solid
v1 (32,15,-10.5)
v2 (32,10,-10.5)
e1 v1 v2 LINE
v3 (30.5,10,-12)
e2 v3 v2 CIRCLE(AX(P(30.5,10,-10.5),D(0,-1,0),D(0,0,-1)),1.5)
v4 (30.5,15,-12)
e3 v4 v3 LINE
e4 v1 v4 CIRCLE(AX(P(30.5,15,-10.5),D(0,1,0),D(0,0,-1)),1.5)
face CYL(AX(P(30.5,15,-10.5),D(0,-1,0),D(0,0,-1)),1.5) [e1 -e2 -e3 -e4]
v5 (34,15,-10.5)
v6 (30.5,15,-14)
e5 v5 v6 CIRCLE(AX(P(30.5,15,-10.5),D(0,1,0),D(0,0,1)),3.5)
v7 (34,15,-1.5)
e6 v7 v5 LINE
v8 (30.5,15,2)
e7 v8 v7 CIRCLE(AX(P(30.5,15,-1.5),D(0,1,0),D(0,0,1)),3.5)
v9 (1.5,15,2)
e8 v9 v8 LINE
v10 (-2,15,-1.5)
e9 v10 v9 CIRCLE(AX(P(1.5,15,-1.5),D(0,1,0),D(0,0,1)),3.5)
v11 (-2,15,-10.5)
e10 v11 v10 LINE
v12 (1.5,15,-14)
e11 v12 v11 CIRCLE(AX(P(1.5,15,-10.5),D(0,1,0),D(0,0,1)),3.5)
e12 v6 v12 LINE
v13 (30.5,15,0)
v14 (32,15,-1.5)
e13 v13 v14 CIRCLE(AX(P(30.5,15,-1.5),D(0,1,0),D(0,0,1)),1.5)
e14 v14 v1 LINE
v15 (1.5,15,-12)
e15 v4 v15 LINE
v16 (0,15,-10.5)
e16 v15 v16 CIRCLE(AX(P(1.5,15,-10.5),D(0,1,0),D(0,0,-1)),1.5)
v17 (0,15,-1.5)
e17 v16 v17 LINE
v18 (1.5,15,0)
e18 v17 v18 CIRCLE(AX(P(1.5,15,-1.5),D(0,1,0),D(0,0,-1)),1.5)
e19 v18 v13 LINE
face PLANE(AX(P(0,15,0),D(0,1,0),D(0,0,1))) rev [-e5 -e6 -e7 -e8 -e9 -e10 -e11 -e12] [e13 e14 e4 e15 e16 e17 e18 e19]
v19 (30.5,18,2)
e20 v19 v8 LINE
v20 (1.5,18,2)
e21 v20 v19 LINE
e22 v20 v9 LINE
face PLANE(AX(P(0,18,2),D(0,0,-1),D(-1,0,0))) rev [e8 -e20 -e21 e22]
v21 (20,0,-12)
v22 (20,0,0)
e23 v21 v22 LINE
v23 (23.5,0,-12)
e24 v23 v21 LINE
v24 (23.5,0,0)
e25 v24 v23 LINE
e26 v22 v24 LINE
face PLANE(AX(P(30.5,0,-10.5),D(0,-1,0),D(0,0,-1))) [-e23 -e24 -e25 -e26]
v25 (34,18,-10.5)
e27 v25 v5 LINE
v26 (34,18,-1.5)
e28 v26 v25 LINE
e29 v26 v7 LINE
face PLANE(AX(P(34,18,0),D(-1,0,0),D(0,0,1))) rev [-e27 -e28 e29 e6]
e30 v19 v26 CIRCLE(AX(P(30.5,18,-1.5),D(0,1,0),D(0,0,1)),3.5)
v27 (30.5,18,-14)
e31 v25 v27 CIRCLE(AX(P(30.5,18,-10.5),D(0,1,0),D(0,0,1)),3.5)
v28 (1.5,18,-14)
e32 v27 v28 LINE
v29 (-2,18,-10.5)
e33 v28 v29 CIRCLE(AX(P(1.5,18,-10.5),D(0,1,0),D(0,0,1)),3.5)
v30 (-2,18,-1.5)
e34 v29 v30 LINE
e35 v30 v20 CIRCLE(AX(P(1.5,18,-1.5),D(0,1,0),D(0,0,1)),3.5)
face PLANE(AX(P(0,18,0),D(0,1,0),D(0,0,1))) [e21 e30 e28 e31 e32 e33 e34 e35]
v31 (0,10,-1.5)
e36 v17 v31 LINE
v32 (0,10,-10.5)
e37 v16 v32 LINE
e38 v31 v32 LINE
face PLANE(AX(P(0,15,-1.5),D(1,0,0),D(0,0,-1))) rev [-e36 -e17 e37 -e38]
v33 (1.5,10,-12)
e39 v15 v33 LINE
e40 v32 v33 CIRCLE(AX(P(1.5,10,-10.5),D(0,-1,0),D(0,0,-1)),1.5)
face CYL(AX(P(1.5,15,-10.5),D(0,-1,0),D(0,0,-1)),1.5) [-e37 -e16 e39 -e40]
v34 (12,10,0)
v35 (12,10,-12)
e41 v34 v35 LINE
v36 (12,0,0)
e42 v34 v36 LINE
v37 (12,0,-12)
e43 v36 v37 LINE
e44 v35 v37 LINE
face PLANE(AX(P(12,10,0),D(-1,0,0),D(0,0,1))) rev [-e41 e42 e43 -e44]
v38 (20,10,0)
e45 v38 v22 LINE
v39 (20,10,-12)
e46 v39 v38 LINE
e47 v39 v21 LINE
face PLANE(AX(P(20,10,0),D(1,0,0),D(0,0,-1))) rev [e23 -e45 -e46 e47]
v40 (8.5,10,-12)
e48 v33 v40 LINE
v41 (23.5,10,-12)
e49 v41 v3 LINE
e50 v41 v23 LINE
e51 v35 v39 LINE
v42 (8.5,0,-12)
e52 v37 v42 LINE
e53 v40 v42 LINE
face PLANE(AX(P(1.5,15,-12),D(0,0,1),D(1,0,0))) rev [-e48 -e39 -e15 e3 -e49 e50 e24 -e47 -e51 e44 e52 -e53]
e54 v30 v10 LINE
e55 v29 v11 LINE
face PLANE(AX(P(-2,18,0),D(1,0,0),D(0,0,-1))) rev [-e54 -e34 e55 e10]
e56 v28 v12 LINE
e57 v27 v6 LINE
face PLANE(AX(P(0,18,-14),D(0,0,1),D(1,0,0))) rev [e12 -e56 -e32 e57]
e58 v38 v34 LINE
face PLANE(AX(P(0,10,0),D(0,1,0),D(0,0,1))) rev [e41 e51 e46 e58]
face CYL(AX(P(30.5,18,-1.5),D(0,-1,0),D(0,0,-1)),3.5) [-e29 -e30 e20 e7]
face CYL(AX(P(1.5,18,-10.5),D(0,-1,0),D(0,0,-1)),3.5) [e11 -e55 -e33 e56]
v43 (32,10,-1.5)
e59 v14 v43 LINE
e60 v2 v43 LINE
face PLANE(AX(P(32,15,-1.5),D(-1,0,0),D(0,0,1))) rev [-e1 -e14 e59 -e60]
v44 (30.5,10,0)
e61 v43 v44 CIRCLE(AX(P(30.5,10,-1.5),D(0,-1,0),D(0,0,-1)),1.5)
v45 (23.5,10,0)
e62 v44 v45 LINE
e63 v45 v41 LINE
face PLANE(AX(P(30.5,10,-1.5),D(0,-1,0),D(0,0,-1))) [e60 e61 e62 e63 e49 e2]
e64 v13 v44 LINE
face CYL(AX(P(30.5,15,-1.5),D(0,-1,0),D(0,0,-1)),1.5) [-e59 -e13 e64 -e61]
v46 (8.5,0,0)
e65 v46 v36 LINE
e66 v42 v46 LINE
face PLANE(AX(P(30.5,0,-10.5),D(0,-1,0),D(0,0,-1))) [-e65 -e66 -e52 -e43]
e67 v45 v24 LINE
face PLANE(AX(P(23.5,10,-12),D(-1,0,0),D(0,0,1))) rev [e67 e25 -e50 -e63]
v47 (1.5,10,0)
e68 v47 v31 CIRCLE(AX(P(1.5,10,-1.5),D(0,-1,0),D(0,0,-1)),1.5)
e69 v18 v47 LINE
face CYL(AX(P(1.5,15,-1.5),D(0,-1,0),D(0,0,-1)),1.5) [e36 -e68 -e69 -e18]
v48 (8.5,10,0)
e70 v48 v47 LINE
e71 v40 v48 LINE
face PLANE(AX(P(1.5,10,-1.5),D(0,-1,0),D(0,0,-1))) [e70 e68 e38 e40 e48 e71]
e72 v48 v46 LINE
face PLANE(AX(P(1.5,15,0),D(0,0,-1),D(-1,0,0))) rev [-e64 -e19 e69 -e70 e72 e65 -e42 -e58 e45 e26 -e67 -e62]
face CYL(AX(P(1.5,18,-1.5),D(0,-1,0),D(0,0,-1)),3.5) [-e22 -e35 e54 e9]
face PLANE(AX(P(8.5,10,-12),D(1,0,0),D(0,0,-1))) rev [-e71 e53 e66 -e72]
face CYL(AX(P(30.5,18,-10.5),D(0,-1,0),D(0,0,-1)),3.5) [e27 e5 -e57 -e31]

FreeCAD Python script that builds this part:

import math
import FreeCAD as App
import Part
import Sketcher


def add_polygon(sketch, points):
    """Adds a closed chain of lines whose ends are joined by coincident constraints."""
    first, n = sketch.GeometryCount, len(points)
    for a, b in zip(points, points[1:] + points[:1]):
        sketch.addGeometry(Part.LineSegment(App.Vector(*a, 0), App.Vector(*b, 0)), False)
    for i in range(n):
        sketch.addConstraint(Sketcher.Constraint("Coincident", first + i, 2, first + (i + 1) % n, 1))

doc = App.newDocument("Part")
body = doc.addObject("PartDesign::Body", "Body")

sketch1 = body.newObject("Sketcher::SketchObject", "Sketch")
sketch1.AttachmentSupport = (doc.getObject("XZ_Plane"), [""])
sketch1.MapMode = "FlatFace"
sketch1.addGeometry(Part.LineSegment(App.Vector(1.5, 0, 0), App.Vector(30.5, 0, 0)), False)
sketch1.addGeometry(Part.ArcOfCircle(Part.Circle(App.Vector(30.5, -1.5, 0), App.Vector(0, 0, 1), 1.5), math.radians(0), math.radians(90)), False)
sketch1.addGeometry(Part.LineSegment(App.Vector(32, -1.5, 0), App.Vector(32, -10.5, 0)), False)
sketch1.addGeometry(Part.ArcOfCircle(Part.Circle(App.Vector(30.5, -10.5, 0), App.Vector(0, 0, 1), 1.5), math.radians(-90), math.radians(0)), False)
sketch1.addGeometry(Part.LineSegment(App.Vector(30.5, -12, 0), App.Vector(1.5, -12, 0)), False)
sketch1.addGeometry(Part.ArcOfCircle(Part.Circle(App.Vector(1.5, -10.5, 0), App.Vector(0, 0, 1), 1.5), math.radians(180), math.radians(270)), False)
sketch1.addGeometry(Part.LineSegment(App.Vector(0, -10.5, 0), App.Vector(0, -1.5, 0)), False)
sketch1.addGeometry(Part.ArcOfCircle(Part.Circle(App.Vector(1.5, -1.5, 0), App.Vector(0, 0, 1), 1.5), math.radians(90), math.radians(180)), False)
sketch1.addConstraint(Sketcher.Constraint("Tangent", 0, 2, 1, 2))
sketch1.addConstraint(Sketcher.Constraint("Tangent", 1, 1, 2, 1))
sketch1.addConstraint(Sketcher.Constraint("Tangent", 2, 2, 3, 2))
sketch1.addConstraint(Sketcher.Constraint("Tangent", 3, 1, 4, 1))
sketch1.addConstraint(Sketcher.Constraint("Tangent", 4, 2, 5, 2))
sketch1.addConstraint(Sketcher.Constraint("Tangent", 5, 1, 6, 1))
sketch1.addConstraint(Sketcher.Constraint("Tangent", 6, 2, 7, 2))
sketch1.addConstraint(Sketcher.Constraint("Tangent", 7, 1, 0, 1))
sketch1.addConstraint(Sketcher.Constraint("Horizontal", 0))
sketch1.addConstraint(Sketcher.Constraint("Vertical", 2))
sketch1.addConstraint(Sketcher.Constraint("Horizontal", 4))
sketch1.addConstraint(Sketcher.Constraint("Vertical", 6))
sketch1.addConstraint(Sketcher.Constraint("Equal", 1, 3))
sketch1.addConstraint(Sketcher.Constraint("Equal", 3, 5))
sketch1.addConstraint(Sketcher.Constraint("Equal", 5, 7))
sketch1.addConstraint(Sketcher.Constraint("PointOnObject", 0, 2, -1))
sketch1.addConstraint(Sketcher.Constraint("PointOnObject", 5, 1, -2))
sketch1.addConstraint(Sketcher.Constraint("Radius", 1, 1.5))
sketch1.addConstraint(Sketcher.Constraint("DistanceX", 0, 1, 0, 2, 29.0))
sketch1.addConstraint(Sketcher.Constraint("DistanceY", 2, 2, 2, 1, 9.0))
pad1 = body.newObject("PartDesign::Pad", "Pad")
pad1.Profile = sketch1
pad1.Length = 15
pad1.Reversed = True

sketch2 = body.newObject("Sketcher::SketchObject", "Sketch001")
sketch2.AttachmentSupport = (doc.getObject("XZ_Plane"), [""])
sketch2.MapMode = "FlatFace"
sketch2.AttachmentOffset = App.Placement(App.Vector(0, 0, -15), App.Rotation())
sketch2.addGeometry(Part.LineSegment(App.Vector(1.5, 2, 0), App.Vector(30.5, 2, 0)), False)
sketch2.addGeometry(Part.ArcOfCircle(Part.Circle(App.Vector(30.5, -1.5, 0), App.Vector(0, 0, 1), 3.5), math.radians(0), math.radians(90)), False)
sketch2.addGeometry(Part.LineSegment(App.Vector(34, -1.5, 0), App.Vector(34, -10.5, 0)), False)
sketch2.addGeometry(Part.ArcOfCircle(Part.Circle(App.Vector(30.5, -10.5, 0), App.Vector(0, 0, 1), 3.5), math.radians(-90), math.radians(0)), False)
sketch2.addGeometry(Part.LineSegment(App.Vector(30.5, -14, 0), App.Vector(1.5, -14, 0)), False)
sketch2.addGeometry(Part.ArcOfCircle(Part.Circle(App.Vector(1.5, -10.5, 0), App.Vector(0, 0, 1), 3.5), math.radians(-180), math.radians(-90)), False)
sketch2.addGeometry(Part.LineSegment(App.Vector(-2, -10.5, 0), App.Vector(-2, -1.5, 0)), False)
sketch2.addGeometry(Part.ArcOfCircle(Part.Circle(App.Vector(1.5, -1.5, 0), App.Vector(0, 0, 1), 3.5), math.radians(90), math.radians(180)), False)
sketch2.addConstraint(Sketcher.Constraint("Tangent", 0, 2, 1, 2))
sketch2.addConstraint(Sketcher.Constraint("Tangent", 1, 1, 2, 1))
sketch2.addConstraint(Sketcher.Constraint("Tangent", 2, 2, 3, 2))
sketch2.addConstraint(Sketcher.Constraint("Tangent", 3, 1, 4, 1))
sketch2.addConstraint(Sketcher.Constraint("Tangent", 4, 2, 5, 2))
sketch2.addConstraint(Sketcher.Constraint("Tangent", 5, 1, 6, 1))
sketch2.addConstraint(Sketcher.Constraint("Tangent", 6, 2, 7, 2))
sketch2.addConstraint(Sketcher.Constraint("Tangent", 7, 1, 0, 1))
sketch2.addConstraint(Sketcher.Constraint("Horizontal", 0))
sketch2.addConstraint(Sketcher.Constraint("Vertical", 2))
sketch2.addConstraint(Sketcher.Constraint("Horizontal", 4))
sketch2.addConstraint(Sketcher.Constraint("Vertical", 6))
sketch2.addConstraint(Sketcher.Constraint("Equal", 1, 3))
sketch2.addConstraint(Sketcher.Constraint("Equal", 3, 5))
sketch2.addConstraint(Sketcher.Constraint("Equal", 5, 7))
sketch2.addConstraint(Sketcher.Constraint("Radius", 1, 3.5))
sketch2.addConstraint(Sketcher.Constraint("DistanceX", 0, 1, 0, 2, 29.0))
sketch2.addConstraint(Sketcher.Constraint("DistanceY", 2, 2, 2, 1, 9.0))
sketch2.addConstraint(Sketcher.Constraint("DistanceY", -1, 1, 0, 2, 2.0))
sketch2.addConstraint(Sketcher.Constraint("DistanceX", -1, 1, 1, 1, 34.0))
pad2 = body.newObject("PartDesign::Pad", "Pad001")
pad2.Profile = sketch2
pad2.Length = 3
pad2.Reversed = True

sketch3 = body.newObject("Sketcher::SketchObject", "Sketch002")
sketch3.AttachmentSupport = (doc.getObject("XZ_Plane"), [""])
sketch3.MapMode = "FlatFace"
add_polygon(sketch3, [(12, 0), (12, -12), (20, -12), (20, 0)])
sketch3.addConstraint(Sketcher.Constraint("Vertical", 0))
sketch3.addConstraint(Sketcher.Constraint("Horizontal", 1))
sketch3.addConstraint(Sketcher.Constraint("Vertical", 2))
sketch3.addConstraint(Sketcher.Constraint("Horizontal", 3))
sketch3.addConstraint(Sketcher.Constraint("PointOnObject", 2, 2, -1))
sketch3.addConstraint(Sketcher.Constraint("DistanceX", 1, 1, 1, 2, 8.0))
sketch3.addConstraint(Sketcher.Constraint("DistanceY", 0, 2, 0, 1, 12.0))
sketch3.addConstraint(Sketcher.Constraint("DistanceX", -1, 1, 0, 2, 12.0))
pocket1 = body.newObject("PartDesign::Pocket", "Pocket")
pocket1.Profile = sketch3
pocket1.Length = 10

sketch4 = body.newObject("Sketcher::SketchObject", "Sketch003")
sketch4.AttachmentSupport = (doc.getObject("XZ_Plane"), [""])
sketch4.MapMode = "FlatFace"
sketch4.addGeometry(Part.LineSegment(App.Vector(8.5, 0, 0), App.Vector(1.5, 0, 0)), False)
sketch4.addGeometry(Part.ArcOfCircle(Part.Circle(App.Vector(1.5, -1.5, 0), App.Vector(0, 0, 1), 1.5), math.radians(90), math.radians(180)), False)
sketch4.addGeometry(Part.LineSegment(App.Vector(0, -1.5, 0), App.Vector(0, -10.5, 0)), False)
sketch4.addGeometry(Part.ArcOfCircle(Part.Circle(App.Vector(1.5, -10.5, 0), App.Vector(0, 0, 1), 1.5), math.radians(180), math.radians(270)), False)
sketch4.addGeometry(Part.LineSegment(App.Vector(1.5, -12, 0), App.Vector(8.5, -12, 0)), False)
sketch4.addGeometry(Part.LineSegment(App.Vector(8.5, -12, 0), App.Vector(8.5, 0, 0)), False)
sketch4.addGeometry(Part.LineSegment(App.Vector(23.5, -12, 0), App.Vector(30.5, -12, 0)), False)
sketch4.addGeometry(Part.ArcOfCircle(Part.Circle(App.Vector(30.5, -10.5, 0), App.Vector(0, 0, 1), 1.5), math.radians(-90), math.radians(0)), False)
sketch4.addGeometry(Part.LineSegment(App.Vector(32, -10.5, 0), App.Vector(32, -1.5, 0)), False)
sketch4.addGeometry(Part.ArcOfCircle(Part.Circle(App.Vector(30.5, -1.5, 0), App.Vector(0, 0, 1), 1.5), math.radians(0), math.radians(90)), False)
sketch4.addGeometry(Part.LineSegment(App.Vector(30.5, 0, 0), App.Vector(23.5, 0, 0)), False)
sketch4.addGeometry(Part.LineSegment(App.Vector(23.5, 0, 0), App.Vector(23.5, -12, 0)), False)
sketch4.addConstraint(Sketcher.Constraint("Tangent", 0, 2, 1, 1))
sketch4.addConstraint(Sketcher.Constraint("Tangent", 1, 2, 2, 1))
sketch4.addConstraint(Sketcher.Constraint("Tangent", 2, 2, 3, 1))
sketch4.addConstraint(Sketcher.Constraint("Tangent", 3, 2, 4, 1))
sketch4.addConstraint(Sketcher.Constraint("Coincident", 4, 2, 5, 1))
sketch4.addConstraint(Sketcher.Constraint("Coincident", 5, 2, 0, 1))
sketch4.addConstraint(Sketcher.Constraint("Tangent", 6, 2, 7, 1))
sketch4.addConstraint(Sketcher.Constraint("Tangent", 7, 2, 8, 1))
sketch4.addConstraint(Sketcher.Constraint("Tangent", 8, 2, 9, 1))
sketch4.addConstraint(Sketcher.Constraint("Tangent", 9, 2, 10, 1))
sketch4.addConstraint(Sketcher.Constraint("Coincident", 10, 2, 11, 1))
sketch4.addConstraint(Sketcher.Constraint("Coincident", 11, 2, 6, 1))
sketch4.addConstraint(Sketcher.Constraint("Horizontal", 0))
sketch4.addConstraint(Sketcher.Constraint("Vertical", 2))
sketch4.addConstraint(Sketcher.Constraint("Horizontal", 4))
sketch4.addConstraint(Sketcher.Constraint("Vertical", 5))
sketch4.addConstraint(Sketcher.Constraint("Horizontal", 6))
sketch4.addConstraint(Sketcher.Constraint("Vertical", 8))
sketch4.addConstraint(Sketcher.Constraint("Horizontal", 10))
sketch4.addConstraint(Sketcher.Constraint("Vertical", 11))
sketch4.addConstraint(Sketcher.Constraint("Equal", 1, 3))
sketch4.addConstraint(Sketcher.Constraint("Equal", 3, 7))
sketch4.addConstraint(Sketcher.Constraint("Equal", 7, 9))
sketch4.addConstraint(Sketcher.Constraint("PointOnObject", 0, 2, -1))
sketch4.addConstraint(Sketcher.Constraint("PointOnObject", 1, 2, -2))
sketch4.addConstraint(Sketcher.Constraint("PointOnObject", 9, 2, -1))
sketch4.addConstraint(Sketcher.Constraint("Horizontal", 3, 3, 7, 3))
sketch4.addConstraint(Sketcher.Constraint("Equal", 4, 6))
sketch4.addConstraint(Sketcher.Constraint("Radius", 1, 1.5))
sketch4.addConstraint(Sketcher.Constraint("DistanceX", 0, 2, 0, 1, 7.0))
sketch4.addConstraint(Sketcher.Constraint("DistanceY", 2, 2, 2, 1, 9.0))
sketch4.addConstraint(Sketcher.Constraint("DistanceX", -1, 1, 7, 2, 32.0))
pocket2 = body.newObject("PartDesign::Pocket", "Pocket001")
pocket2.Profile = sketch4
pocket2.Length = 10

doc.recompute()
